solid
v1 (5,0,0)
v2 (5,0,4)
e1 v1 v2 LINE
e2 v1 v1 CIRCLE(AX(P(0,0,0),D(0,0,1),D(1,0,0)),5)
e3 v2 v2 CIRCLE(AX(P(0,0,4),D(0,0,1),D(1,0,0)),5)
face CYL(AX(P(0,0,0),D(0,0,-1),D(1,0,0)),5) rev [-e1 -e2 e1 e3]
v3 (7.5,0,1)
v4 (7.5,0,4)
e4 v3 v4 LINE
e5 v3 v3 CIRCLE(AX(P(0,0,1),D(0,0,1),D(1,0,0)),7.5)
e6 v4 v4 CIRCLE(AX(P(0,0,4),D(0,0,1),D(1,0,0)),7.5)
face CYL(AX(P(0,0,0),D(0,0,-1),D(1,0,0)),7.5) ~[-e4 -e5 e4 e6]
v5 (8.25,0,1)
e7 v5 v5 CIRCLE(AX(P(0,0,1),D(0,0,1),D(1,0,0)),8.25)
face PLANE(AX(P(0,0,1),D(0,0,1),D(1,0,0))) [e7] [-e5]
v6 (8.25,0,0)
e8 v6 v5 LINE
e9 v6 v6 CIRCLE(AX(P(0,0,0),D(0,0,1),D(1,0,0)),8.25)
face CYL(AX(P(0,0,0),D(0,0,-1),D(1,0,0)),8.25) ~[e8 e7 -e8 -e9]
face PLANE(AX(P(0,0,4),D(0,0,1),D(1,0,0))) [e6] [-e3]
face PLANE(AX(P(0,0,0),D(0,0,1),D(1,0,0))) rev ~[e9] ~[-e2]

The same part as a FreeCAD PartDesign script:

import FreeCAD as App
import Part
import Sketcher
Q = App.Units.Quantity

doc = App.newDocument("Part")
params = doc.addObject("Spreadsheet::Sheet", "Params")
for row, (alias, value) in enumerate([
    ("sketch1_diameter", "15 mm"),
    ("sketch1_diameter2", "16.5 mm"),
    ("pad1_length", "1 mm"),
    ("sketch2_diameter", "15 mm"),
    ("sketch2_diameter2", "10 mm"),
    ("pad2_length", "4 mm"),
], start=1):
    params.set(f"A{row}", alias)
    params.set(f"B{row}", "=" + value)
    params.setAlias(f"B{row}", alias)

body = doc.addObject("PartDesign::Body", "Body")

# Sketch on XY plane
sketch1 = body.newObject("Sketcher::SketchObject", "Sketch")
sketch1.AttachmentSupport = (doc.getObject("XY_Plane"), [""])
sketch1.MapMode = "FlatFace"
sketch1.addGeometry(Part.Circle(App.Vector(0, 0, 0), App.Vector(0, 0, 1), 8), False)
sketch1.addGeometry(Part.Circle(App.Vector(0, 0, 0), App.Vector(0, 0, 1), 8), False)
sketch1.addConstraint(Sketcher.Constraint("Coincident", 0, 3, -1, 1))
sketch1.addConstraint(Sketcher.Constraint("Coincident", 1, 3, -1, 1))
sketch1.addConstraint(Sketcher.Constraint("Diameter", 1, Q("15 mm")))
sketch1.addConstraint(Sketcher.Constraint("Diameter", 0, Q("16.5 mm")))
sketch1.setExpression("Constraints[2]", "Params.sketch1_diameter")
sketch1.setExpression("Constraints[3]", "Params.sketch1_diameter2")
pad1 = body.newObject("PartDesign::Pad", "Pad")
pad1.Profile = sketch1
pad1.setExpression("Length", "Params.pad1_length")

# Sketch on XY plane
sketch2 = body.newObject("Sketcher::SketchObject", "Sketch001")
sketch2.AttachmentSupport = (doc.getObject("XY_Plane"), [""])
sketch2.MapMode = "FlatFace"
sketch2.addGeometry(Part.Circle(App.Vector(0, 0, 0), App.Vector(0, 0, 1), 8), False)
sketch2.addGeometry(Part.Circle(App.Vector(0, 0, 0), App.Vector(0, 0, 1), 5), False)
sketch2.addConstraint(Sketcher.Constraint("Coincident", 0, 3, -1, 1))
sketch2.addConstraint(Sketcher.Constraint("Coincident", 1, 3, -1, 1))
sketch2.addConstraint(Sketcher.Constraint("Diameter", 0, Q("15 mm")))
sketch2.addConstraint(Sketcher.Constraint("Diameter", 1, Q("10 mm")))
sketch2.setExpression("Constraints[2]", "Params.sketch2_diameter")
sketch2.setExpression("Constraints[3]", "Params.sketch2_diameter2")
pad2 = body.newObject("PartDesign::Pad", "Pad001")
pad2.Profile = sketch2
pad2.setExpression("Length", "Params.pad2_length")

doc.recompute()
